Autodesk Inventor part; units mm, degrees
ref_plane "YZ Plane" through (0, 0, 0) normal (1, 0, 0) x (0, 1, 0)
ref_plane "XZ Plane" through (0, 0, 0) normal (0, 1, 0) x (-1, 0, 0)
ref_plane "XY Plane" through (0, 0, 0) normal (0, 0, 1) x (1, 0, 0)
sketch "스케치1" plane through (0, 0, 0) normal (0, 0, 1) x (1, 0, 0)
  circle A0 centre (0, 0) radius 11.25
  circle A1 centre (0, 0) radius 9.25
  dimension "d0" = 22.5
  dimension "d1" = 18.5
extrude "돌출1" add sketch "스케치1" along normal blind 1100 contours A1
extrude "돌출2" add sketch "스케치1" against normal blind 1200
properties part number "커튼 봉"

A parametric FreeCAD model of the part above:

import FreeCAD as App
import Part
import Sketcher

V = App.Vector
Q = App.Units.Quantity

doc = App.newDocument("Part")
params = doc.addObject("Spreadsheet::Sheet", "Params")
for row, (alias, value) in enumerate([
    ("sketch1_diameter", "18.5 mm"),
    ("pad1_length", "1100 mm"),
    ("sketch2_diameter", "22.5 mm"),
    ("sketch2_diameter2", "18.5 mm"),
    ("pad2_length", "1200 mm"),
], start=1):
    params.set(f"A{row}", alias)
    params.set(f"B{row}", "=" + value)
    params.setAlias(f"B{row}", alias)

body = doc.addObject("PartDesign::Body", "Body")
body.AllowCompound = True

# Sketch on XY plane
sketch1 = body.newObject("Sketcher::SketchObject", "Sketch")
sketch1.AttachmentSupport = (doc.getObject("XY_Plane"), [""])
sketch1.MapMode = "FlatFace"
sketch1.addGeometry(Part.Circle(V(0, 0, 0), V(0, 0, 1), 9.25), False)
sketch1.addConstraint(Sketcher.Constraint("Coincident", 0, 3, -1, 1))
sketch1.addConstraint(Sketcher.Constraint("Diameter", 0, Q("18.5 mm")))
sketch1.setExpression("Constraints[1]", "Params.sketch1_diameter")
pad1 = body.newObject("PartDesign::Pad", "Pad")
pad1.Profile = sketch1
pad1.setExpression("Length", "Params.pad1_length")

# Sketch on XY plane
sketch2 = body.newObject("Sketcher::SketchObject", "Sketch001")
sketch2.AttachmentSupport = (doc.getObject("XY_Plane"), [""])
sketch2.MapMode = "FlatFace"
sketch2.addGeometry(Part.Circle(V(0, 0, 0), V(0, 0, 1), 11.25), False)
sketch2.addGeometry(Part.Circle(V(0, 0, 0), V(0, 0, 1), 9.25), False)
sketch2.addConstraint(Sketcher.Constraint("Coincident", 0, 3, -1, 1))
sketch2.addConstraint(Sketcher.Constraint("Coincident", 1, 3, -1, 1))
sketch2.addConstraint(Sketcher.Constraint("Diameter", 0, Q("22.5 mm")))
sketch2.addConstraint(Sketcher.Constraint("Diameter", 1, Q("18.5 mm")))
sketch2.setExpression("Constraints[2]", "Params.sketch2_diameter")
sketch2.setExpression("Constraints[3]", "Params.sketch2_diameter2")
pad2 = body.newObject("PartDesign::Pad", "Pad001")
pad2.Profile = sketch2
pad2.setExpression("Length", "Params.pad2_length")
pad2.Reversed = True

doc.recompute()
